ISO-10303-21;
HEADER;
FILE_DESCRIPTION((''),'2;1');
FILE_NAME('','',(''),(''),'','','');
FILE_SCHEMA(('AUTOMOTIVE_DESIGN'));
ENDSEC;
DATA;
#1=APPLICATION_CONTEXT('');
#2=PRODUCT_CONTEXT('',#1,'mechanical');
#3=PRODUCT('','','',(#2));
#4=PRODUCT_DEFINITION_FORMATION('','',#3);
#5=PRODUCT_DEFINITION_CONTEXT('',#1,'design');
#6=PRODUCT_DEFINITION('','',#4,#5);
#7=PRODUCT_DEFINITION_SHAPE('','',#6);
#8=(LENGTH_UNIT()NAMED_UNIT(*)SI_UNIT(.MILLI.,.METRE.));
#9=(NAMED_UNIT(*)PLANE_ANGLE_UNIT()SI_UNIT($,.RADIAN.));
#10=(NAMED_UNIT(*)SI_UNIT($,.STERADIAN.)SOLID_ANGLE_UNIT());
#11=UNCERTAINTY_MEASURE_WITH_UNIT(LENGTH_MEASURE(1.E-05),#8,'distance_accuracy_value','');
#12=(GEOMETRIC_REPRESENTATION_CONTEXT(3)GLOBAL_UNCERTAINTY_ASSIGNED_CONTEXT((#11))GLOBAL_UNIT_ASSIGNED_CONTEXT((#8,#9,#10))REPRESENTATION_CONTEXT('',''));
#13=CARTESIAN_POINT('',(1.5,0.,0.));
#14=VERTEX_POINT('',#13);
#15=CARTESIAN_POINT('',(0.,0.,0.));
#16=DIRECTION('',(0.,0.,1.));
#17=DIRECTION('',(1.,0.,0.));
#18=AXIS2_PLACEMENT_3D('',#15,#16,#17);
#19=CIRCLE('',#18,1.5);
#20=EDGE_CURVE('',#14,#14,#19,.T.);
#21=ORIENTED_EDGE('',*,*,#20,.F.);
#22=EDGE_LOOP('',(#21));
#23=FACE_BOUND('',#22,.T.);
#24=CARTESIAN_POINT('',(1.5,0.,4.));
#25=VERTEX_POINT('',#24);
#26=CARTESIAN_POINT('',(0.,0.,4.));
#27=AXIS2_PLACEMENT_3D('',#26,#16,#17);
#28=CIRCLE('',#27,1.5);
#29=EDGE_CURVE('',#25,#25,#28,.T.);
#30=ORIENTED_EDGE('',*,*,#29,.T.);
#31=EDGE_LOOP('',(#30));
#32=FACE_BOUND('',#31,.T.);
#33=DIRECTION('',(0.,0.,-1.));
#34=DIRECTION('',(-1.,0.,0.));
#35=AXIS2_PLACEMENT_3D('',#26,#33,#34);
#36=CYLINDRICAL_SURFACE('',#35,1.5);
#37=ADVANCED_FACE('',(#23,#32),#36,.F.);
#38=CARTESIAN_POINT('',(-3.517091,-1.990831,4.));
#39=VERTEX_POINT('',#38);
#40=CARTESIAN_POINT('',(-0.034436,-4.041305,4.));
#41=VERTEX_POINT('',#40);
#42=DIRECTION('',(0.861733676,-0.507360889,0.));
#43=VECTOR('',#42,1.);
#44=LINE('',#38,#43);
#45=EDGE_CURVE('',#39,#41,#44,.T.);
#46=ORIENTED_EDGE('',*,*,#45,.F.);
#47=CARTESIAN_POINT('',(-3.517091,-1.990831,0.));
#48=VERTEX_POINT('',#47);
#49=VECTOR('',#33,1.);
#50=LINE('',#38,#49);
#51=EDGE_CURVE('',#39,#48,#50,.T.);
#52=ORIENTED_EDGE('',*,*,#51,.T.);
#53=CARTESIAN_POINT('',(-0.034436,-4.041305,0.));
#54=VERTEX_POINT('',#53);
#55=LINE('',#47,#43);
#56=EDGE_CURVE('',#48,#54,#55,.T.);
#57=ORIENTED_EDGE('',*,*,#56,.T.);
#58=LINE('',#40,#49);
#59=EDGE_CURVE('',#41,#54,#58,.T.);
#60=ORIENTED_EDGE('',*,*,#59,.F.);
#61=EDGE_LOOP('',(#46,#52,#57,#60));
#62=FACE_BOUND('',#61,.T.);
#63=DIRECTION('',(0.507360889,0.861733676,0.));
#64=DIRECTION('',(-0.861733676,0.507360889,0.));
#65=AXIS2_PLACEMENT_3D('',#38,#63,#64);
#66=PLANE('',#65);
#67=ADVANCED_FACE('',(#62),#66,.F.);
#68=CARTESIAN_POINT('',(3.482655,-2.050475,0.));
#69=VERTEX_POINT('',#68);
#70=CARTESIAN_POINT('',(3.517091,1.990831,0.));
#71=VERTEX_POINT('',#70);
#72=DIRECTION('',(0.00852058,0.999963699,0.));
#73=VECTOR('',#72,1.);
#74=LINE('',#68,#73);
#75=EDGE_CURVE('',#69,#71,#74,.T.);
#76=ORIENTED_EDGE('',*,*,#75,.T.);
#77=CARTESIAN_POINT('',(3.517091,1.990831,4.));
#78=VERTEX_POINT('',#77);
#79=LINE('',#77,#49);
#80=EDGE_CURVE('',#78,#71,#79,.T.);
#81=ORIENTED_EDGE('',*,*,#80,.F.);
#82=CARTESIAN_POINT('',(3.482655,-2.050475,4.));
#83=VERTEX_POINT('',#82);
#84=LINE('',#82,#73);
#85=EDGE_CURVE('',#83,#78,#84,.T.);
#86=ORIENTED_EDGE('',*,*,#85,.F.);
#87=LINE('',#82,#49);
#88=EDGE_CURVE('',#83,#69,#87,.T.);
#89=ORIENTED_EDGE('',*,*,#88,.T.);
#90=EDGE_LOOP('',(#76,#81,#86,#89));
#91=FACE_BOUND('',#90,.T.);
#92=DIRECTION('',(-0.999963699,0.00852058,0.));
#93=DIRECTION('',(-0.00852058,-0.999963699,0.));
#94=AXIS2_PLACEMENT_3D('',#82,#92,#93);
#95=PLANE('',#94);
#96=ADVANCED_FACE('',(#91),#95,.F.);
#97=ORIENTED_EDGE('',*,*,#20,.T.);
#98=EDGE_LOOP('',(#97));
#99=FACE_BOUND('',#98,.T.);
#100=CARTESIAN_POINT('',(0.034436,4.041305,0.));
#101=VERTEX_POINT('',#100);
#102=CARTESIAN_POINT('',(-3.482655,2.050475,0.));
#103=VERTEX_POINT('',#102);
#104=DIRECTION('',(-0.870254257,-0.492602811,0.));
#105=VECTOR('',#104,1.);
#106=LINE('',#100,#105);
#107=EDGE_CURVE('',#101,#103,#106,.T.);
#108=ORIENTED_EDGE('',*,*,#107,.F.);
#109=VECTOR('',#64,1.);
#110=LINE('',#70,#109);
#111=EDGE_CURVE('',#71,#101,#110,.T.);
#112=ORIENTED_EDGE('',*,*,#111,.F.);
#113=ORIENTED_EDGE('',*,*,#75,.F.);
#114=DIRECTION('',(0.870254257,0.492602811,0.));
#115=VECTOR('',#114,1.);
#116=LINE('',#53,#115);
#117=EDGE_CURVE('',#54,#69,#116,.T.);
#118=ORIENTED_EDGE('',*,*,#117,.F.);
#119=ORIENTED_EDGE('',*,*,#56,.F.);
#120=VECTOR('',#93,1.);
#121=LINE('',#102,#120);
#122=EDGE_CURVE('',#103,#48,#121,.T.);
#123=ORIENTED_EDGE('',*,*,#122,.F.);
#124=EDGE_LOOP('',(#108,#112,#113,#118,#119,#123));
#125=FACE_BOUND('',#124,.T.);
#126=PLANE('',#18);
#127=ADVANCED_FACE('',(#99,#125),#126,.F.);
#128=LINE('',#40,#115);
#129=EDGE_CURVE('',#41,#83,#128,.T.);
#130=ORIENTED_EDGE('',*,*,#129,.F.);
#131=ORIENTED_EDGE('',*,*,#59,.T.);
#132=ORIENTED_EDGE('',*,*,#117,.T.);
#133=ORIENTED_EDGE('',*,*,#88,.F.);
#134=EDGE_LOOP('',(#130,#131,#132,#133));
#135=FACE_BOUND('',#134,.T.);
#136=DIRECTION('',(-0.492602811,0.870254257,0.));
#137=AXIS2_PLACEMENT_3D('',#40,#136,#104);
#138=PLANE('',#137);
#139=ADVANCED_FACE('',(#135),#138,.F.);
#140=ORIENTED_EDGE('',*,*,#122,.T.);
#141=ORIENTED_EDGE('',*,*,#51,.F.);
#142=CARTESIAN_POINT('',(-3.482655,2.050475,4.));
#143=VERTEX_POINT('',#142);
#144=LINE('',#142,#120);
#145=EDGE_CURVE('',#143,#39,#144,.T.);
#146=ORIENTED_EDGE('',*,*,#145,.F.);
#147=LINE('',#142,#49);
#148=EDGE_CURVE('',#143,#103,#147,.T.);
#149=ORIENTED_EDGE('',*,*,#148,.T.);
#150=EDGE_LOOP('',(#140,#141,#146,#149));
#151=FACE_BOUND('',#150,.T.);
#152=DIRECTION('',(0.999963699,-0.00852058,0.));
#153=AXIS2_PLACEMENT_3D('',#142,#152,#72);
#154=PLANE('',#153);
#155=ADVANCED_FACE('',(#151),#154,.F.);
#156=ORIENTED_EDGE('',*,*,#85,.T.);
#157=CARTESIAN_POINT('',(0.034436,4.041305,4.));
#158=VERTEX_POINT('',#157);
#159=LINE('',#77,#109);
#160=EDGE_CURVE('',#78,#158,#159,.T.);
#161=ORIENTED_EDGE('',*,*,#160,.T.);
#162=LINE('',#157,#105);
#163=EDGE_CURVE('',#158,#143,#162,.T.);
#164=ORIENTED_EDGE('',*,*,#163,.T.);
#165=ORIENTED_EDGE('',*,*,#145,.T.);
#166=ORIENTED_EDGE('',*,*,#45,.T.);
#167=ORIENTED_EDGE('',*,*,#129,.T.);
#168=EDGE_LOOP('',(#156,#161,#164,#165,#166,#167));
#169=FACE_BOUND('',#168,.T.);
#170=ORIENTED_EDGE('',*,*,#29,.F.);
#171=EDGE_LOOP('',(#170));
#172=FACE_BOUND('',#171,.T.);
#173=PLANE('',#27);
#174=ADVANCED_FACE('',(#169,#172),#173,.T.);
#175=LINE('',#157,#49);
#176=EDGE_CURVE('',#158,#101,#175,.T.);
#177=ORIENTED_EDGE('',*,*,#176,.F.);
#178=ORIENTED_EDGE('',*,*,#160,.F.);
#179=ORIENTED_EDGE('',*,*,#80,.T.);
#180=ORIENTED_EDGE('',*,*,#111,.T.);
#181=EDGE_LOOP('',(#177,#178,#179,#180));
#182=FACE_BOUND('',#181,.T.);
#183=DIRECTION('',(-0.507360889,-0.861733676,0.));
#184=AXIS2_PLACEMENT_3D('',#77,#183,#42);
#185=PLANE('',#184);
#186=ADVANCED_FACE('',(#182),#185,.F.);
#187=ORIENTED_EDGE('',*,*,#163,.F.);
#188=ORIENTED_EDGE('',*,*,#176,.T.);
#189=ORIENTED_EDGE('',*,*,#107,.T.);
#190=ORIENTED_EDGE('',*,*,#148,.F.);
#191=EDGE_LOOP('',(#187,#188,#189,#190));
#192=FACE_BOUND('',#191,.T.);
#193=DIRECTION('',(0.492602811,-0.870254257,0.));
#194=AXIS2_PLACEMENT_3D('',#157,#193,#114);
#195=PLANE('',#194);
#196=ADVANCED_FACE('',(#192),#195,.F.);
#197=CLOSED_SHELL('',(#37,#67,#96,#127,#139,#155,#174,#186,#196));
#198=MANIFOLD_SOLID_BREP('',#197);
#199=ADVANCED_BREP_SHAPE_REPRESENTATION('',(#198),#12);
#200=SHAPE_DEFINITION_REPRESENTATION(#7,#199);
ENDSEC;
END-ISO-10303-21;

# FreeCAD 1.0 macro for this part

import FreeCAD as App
import Part
import Sketcher
from FreeCAD import Vector
Q = App.Units.Quantity

doc = App.newDocument("Part")
body = doc.addObject("PartDesign::Body", "Body")

sketch1 = body.newObject("Sketcher::SketchObject", "Sketch")
sketch1.AttachmentSupport = (doc.getObject("XY_Plane"), [""])
sketch1.MapMode = "FlatFace"
sketch1.addGeometry([
    Part.LineSegment(Vector(-3.5, 2.1, 0), Vector(-3.5, -2, 0)),
    Part.LineSegment(Vector(-3.5, -2, 0), Vector(0, -4, 0)),
    Part.LineSegment(Vector(0, -4, 0), Vector(3.5, -2.1, 0)),
    Part.LineSegment(Vector(3.5, -2.1, 0), Vector(3.5, 2, 0)),
    Part.LineSegment(Vector(3.5, 2, 0), Vector(0, 4, 0)),
    Part.LineSegment(Vector(0, 4, 0), Vector(-3.5, 2.1, 0)),
    Part.Circle(Vector(0, 0, 0), Vector(0, 0, 1), 1.5),
], False)
sketch1.addConstraint([
    Sketcher.Constraint("Coincident", 0, 2, 1, 1),
    Sketcher.Constraint("Coincident", 1, 2, 2, 1),
    Sketcher.Constraint("Coincident", 2, 2, 3, 1),
    Sketcher.Constraint("Coincident", 3, 2, 4, 1),
    Sketcher.Constraint("Coincident", 4, 2, 5, 1),
    Sketcher.Constraint("Coincident", 5, 2, 0, 1),
    Sketcher.Constraint("Coincident", 6, 3, -1, 1),
    Sketcher.Constraint("Symmetric", 0, 2, 3, 2, -1, 1),
    Sketcher.Constraint("Symmetric", 1, 2, 4, 2, -1, 1),
    Sketcher.Constraint("Symmetric", 2, 2, 5, 2, -1, 1),
    Sketcher.Constraint("Equal", 0, 1),
    Sketcher.Constraint("Equal", 1, 2),
    Sketcher.Constraint("Diameter", 6, Q("3 mm")),
    Sketcher.Constraint("Distance", 0, Q("4.041452 mm")),
    Sketcher.Constraint("DistanceX", 0, 2, -1, 1, Q("3.517091 mm")),
    Sketcher.Constraint("DistanceY", 0, 2, -1, 1, Q("1.990831 mm")),
    Sketcher.Constraint("DistanceX", 1, 2, 2, 2, Q("3.517091 mm")),
])
pad1 = body.newObject("PartDesign::Pad", "Pad")
pad1.Profile = sketch1
pad1.Length = 4

doc.recompute()
